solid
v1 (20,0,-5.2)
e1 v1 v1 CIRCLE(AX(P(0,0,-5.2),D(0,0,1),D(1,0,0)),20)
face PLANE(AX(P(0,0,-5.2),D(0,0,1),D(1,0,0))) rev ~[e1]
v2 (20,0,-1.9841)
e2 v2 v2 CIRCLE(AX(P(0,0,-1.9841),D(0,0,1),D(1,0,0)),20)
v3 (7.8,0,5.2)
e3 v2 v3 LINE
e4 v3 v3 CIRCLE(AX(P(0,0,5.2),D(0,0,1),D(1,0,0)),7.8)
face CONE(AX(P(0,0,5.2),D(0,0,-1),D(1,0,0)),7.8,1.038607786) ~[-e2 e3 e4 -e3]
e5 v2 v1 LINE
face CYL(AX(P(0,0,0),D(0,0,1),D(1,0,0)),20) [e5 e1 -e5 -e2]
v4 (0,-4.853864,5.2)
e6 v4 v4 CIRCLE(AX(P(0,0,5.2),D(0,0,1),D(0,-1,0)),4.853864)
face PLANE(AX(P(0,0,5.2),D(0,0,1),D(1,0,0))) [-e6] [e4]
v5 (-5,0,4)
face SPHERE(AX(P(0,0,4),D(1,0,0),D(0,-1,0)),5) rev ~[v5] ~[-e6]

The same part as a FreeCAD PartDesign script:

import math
import FreeCAD as App
import Part
import Sketcher
Q = App.Units.Quantity

doc = App.newDocument("Part")
params = doc.addObject("Spreadsheet::Sheet", "Params")
for row, (alias, value) in enumerate([
    ("sketch1_diameter", "40 mm"),
    ("pad1_length", "10.4 mm"),
    ("sketch2_radius", "5 mm"),
    ("groove_angle", "360 deg"),
    ("sketch3_width", "12.2 mm"),
    ("groove2_angle", "360 deg"),
], start=1):
    params.set(f"A{row}", alias)
    params.set(f"B{row}", "=" + value)
    params.setAlias(f"B{row}", alias)

body = doc.addObject("PartDesign::Body", "Body")

# Sketch on XY plane
sketch1 = body.newObject("Sketcher::SketchObject", "Sketch")
sketch1.AttachmentSupport = (doc.getObject("XY_Plane"), [""])
sketch1.MapMode = "FlatFace"
sketch1.addGeometry(Part.Circle(App.Vector(0, 0, 0), App.Vector(0, 0, 1), 20), False)
sketch1.addConstraint([
    Sketcher.Constraint("Coincident", 0, 3, -1, 1),
    Sketcher.Constraint("Diameter", 0, Q("40 mm")),
])
sketch1.setExpression("Constraints[1]", "Params.sketch1_diameter")
pad1 = body.newObject("PartDesign::Pad", "Pad")
pad1.Profile = sketch1
pad1.setExpression("Length", "Params.pad1_length")
pad1.Midplane = True

# Sketch on XY plane
sketch2 = body.newObject("Sketcher::SketchObject", "Sketch001")
sketch2.AttachmentSupport = (doc.getObject("XY_Plane"), [""])
sketch2.MapMode = "FlatFace"
sketch2.AttachmentOffset = App.Placement(App.Vector(0, 0, 4), App.Rotation())
sketch2.addGeometry([
    Part.LineSegment(App.Vector(5, 0, 0), App.Vector(-5, 0, 0)),
    Part.ArcOfCircle(Part.Circle(App.Vector(0, 0, 0), App.Vector(0, 0, 1), 5), math.radians(180), math.radians(360)),
], False)
sketch2.addConstraint([
    Sketcher.Constraint("Coincident", 0, 1, 1, 2),
    Sketcher.Constraint("Coincident", 1, 1, 0, 2),
    Sketcher.Constraint("Horizontal", 0),
    Sketcher.Constraint("Coincident", 1, 3, -1, 1),
    Sketcher.Constraint("PointOnObject", 0, 1, -1),
    Sketcher.Constraint("Radius", 1, Q("5 mm")),
])
sketch2.setExpression("Constraints[5]", "Params.sketch2_radius")
groove = body.newObject("PartDesign::Groove", "Groove")
groove.Profile = sketch2
groove.ReferenceAxis = (sketch2, ["H_Axis"])
groove.setExpression("Angle", "Params.groove_angle")

# Sketch on XZ plane
sketch3 = body.newObject("Sketcher::SketchObject", "Sketch002")
sketch3.AttachmentSupport = (doc.getObject("XZ_Plane"), [""])
sketch3.MapMode = "FlatFace"
sketch3.addGeometry([
    Part.LineSegment(App.Vector(20, -1.9841, 0), App.Vector(7.8, 5.2, 0)),
    Part.LineSegment(App.Vector(7.8, 5.2, 0), App.Vector(20, 5.2, 0)),
    Part.LineSegment(App.Vector(20, 5.2, 0), App.Vector(20, -1.9841, 0)),
], False)
sketch3.addConstraint([
    Sketcher.Constraint("Coincident", 0, 2, 1, 1),
    Sketcher.Constraint("Coincident", 1, 2, 2, 1),
    Sketcher.Constraint("Coincident", 2, 2, 0, 1),
    Sketcher.Constraint("Horizontal", 1),
    Sketcher.Constraint("Vertical", 2),
    Sketcher.Constraint("DistanceX", 1, 1, 1, 2, Q("12.2 mm")),
    Sketcher.Constraint("DistanceX", -1, 1, 1, 2, Q("20 mm")),
    Sketcher.Constraint("DistanceY", -1, 1, 0, 2, Q("5.2 mm")),
    Sketcher.Constraint("DistanceY", 2, 2, 2, 1, Q("7.184 mm")),
])
sketch3.setExpression("Constraints[5]", "Params.sketch3_width")
groove2 = body.newObject("PartDesign::Groove", "Groove001")
groove2.Profile = sketch3
groove2.ReferenceAxis = (sketch3, ["V_Axis"])
groove2.setExpression("Angle", "Params.groove2_angle")

doc.recompute()
